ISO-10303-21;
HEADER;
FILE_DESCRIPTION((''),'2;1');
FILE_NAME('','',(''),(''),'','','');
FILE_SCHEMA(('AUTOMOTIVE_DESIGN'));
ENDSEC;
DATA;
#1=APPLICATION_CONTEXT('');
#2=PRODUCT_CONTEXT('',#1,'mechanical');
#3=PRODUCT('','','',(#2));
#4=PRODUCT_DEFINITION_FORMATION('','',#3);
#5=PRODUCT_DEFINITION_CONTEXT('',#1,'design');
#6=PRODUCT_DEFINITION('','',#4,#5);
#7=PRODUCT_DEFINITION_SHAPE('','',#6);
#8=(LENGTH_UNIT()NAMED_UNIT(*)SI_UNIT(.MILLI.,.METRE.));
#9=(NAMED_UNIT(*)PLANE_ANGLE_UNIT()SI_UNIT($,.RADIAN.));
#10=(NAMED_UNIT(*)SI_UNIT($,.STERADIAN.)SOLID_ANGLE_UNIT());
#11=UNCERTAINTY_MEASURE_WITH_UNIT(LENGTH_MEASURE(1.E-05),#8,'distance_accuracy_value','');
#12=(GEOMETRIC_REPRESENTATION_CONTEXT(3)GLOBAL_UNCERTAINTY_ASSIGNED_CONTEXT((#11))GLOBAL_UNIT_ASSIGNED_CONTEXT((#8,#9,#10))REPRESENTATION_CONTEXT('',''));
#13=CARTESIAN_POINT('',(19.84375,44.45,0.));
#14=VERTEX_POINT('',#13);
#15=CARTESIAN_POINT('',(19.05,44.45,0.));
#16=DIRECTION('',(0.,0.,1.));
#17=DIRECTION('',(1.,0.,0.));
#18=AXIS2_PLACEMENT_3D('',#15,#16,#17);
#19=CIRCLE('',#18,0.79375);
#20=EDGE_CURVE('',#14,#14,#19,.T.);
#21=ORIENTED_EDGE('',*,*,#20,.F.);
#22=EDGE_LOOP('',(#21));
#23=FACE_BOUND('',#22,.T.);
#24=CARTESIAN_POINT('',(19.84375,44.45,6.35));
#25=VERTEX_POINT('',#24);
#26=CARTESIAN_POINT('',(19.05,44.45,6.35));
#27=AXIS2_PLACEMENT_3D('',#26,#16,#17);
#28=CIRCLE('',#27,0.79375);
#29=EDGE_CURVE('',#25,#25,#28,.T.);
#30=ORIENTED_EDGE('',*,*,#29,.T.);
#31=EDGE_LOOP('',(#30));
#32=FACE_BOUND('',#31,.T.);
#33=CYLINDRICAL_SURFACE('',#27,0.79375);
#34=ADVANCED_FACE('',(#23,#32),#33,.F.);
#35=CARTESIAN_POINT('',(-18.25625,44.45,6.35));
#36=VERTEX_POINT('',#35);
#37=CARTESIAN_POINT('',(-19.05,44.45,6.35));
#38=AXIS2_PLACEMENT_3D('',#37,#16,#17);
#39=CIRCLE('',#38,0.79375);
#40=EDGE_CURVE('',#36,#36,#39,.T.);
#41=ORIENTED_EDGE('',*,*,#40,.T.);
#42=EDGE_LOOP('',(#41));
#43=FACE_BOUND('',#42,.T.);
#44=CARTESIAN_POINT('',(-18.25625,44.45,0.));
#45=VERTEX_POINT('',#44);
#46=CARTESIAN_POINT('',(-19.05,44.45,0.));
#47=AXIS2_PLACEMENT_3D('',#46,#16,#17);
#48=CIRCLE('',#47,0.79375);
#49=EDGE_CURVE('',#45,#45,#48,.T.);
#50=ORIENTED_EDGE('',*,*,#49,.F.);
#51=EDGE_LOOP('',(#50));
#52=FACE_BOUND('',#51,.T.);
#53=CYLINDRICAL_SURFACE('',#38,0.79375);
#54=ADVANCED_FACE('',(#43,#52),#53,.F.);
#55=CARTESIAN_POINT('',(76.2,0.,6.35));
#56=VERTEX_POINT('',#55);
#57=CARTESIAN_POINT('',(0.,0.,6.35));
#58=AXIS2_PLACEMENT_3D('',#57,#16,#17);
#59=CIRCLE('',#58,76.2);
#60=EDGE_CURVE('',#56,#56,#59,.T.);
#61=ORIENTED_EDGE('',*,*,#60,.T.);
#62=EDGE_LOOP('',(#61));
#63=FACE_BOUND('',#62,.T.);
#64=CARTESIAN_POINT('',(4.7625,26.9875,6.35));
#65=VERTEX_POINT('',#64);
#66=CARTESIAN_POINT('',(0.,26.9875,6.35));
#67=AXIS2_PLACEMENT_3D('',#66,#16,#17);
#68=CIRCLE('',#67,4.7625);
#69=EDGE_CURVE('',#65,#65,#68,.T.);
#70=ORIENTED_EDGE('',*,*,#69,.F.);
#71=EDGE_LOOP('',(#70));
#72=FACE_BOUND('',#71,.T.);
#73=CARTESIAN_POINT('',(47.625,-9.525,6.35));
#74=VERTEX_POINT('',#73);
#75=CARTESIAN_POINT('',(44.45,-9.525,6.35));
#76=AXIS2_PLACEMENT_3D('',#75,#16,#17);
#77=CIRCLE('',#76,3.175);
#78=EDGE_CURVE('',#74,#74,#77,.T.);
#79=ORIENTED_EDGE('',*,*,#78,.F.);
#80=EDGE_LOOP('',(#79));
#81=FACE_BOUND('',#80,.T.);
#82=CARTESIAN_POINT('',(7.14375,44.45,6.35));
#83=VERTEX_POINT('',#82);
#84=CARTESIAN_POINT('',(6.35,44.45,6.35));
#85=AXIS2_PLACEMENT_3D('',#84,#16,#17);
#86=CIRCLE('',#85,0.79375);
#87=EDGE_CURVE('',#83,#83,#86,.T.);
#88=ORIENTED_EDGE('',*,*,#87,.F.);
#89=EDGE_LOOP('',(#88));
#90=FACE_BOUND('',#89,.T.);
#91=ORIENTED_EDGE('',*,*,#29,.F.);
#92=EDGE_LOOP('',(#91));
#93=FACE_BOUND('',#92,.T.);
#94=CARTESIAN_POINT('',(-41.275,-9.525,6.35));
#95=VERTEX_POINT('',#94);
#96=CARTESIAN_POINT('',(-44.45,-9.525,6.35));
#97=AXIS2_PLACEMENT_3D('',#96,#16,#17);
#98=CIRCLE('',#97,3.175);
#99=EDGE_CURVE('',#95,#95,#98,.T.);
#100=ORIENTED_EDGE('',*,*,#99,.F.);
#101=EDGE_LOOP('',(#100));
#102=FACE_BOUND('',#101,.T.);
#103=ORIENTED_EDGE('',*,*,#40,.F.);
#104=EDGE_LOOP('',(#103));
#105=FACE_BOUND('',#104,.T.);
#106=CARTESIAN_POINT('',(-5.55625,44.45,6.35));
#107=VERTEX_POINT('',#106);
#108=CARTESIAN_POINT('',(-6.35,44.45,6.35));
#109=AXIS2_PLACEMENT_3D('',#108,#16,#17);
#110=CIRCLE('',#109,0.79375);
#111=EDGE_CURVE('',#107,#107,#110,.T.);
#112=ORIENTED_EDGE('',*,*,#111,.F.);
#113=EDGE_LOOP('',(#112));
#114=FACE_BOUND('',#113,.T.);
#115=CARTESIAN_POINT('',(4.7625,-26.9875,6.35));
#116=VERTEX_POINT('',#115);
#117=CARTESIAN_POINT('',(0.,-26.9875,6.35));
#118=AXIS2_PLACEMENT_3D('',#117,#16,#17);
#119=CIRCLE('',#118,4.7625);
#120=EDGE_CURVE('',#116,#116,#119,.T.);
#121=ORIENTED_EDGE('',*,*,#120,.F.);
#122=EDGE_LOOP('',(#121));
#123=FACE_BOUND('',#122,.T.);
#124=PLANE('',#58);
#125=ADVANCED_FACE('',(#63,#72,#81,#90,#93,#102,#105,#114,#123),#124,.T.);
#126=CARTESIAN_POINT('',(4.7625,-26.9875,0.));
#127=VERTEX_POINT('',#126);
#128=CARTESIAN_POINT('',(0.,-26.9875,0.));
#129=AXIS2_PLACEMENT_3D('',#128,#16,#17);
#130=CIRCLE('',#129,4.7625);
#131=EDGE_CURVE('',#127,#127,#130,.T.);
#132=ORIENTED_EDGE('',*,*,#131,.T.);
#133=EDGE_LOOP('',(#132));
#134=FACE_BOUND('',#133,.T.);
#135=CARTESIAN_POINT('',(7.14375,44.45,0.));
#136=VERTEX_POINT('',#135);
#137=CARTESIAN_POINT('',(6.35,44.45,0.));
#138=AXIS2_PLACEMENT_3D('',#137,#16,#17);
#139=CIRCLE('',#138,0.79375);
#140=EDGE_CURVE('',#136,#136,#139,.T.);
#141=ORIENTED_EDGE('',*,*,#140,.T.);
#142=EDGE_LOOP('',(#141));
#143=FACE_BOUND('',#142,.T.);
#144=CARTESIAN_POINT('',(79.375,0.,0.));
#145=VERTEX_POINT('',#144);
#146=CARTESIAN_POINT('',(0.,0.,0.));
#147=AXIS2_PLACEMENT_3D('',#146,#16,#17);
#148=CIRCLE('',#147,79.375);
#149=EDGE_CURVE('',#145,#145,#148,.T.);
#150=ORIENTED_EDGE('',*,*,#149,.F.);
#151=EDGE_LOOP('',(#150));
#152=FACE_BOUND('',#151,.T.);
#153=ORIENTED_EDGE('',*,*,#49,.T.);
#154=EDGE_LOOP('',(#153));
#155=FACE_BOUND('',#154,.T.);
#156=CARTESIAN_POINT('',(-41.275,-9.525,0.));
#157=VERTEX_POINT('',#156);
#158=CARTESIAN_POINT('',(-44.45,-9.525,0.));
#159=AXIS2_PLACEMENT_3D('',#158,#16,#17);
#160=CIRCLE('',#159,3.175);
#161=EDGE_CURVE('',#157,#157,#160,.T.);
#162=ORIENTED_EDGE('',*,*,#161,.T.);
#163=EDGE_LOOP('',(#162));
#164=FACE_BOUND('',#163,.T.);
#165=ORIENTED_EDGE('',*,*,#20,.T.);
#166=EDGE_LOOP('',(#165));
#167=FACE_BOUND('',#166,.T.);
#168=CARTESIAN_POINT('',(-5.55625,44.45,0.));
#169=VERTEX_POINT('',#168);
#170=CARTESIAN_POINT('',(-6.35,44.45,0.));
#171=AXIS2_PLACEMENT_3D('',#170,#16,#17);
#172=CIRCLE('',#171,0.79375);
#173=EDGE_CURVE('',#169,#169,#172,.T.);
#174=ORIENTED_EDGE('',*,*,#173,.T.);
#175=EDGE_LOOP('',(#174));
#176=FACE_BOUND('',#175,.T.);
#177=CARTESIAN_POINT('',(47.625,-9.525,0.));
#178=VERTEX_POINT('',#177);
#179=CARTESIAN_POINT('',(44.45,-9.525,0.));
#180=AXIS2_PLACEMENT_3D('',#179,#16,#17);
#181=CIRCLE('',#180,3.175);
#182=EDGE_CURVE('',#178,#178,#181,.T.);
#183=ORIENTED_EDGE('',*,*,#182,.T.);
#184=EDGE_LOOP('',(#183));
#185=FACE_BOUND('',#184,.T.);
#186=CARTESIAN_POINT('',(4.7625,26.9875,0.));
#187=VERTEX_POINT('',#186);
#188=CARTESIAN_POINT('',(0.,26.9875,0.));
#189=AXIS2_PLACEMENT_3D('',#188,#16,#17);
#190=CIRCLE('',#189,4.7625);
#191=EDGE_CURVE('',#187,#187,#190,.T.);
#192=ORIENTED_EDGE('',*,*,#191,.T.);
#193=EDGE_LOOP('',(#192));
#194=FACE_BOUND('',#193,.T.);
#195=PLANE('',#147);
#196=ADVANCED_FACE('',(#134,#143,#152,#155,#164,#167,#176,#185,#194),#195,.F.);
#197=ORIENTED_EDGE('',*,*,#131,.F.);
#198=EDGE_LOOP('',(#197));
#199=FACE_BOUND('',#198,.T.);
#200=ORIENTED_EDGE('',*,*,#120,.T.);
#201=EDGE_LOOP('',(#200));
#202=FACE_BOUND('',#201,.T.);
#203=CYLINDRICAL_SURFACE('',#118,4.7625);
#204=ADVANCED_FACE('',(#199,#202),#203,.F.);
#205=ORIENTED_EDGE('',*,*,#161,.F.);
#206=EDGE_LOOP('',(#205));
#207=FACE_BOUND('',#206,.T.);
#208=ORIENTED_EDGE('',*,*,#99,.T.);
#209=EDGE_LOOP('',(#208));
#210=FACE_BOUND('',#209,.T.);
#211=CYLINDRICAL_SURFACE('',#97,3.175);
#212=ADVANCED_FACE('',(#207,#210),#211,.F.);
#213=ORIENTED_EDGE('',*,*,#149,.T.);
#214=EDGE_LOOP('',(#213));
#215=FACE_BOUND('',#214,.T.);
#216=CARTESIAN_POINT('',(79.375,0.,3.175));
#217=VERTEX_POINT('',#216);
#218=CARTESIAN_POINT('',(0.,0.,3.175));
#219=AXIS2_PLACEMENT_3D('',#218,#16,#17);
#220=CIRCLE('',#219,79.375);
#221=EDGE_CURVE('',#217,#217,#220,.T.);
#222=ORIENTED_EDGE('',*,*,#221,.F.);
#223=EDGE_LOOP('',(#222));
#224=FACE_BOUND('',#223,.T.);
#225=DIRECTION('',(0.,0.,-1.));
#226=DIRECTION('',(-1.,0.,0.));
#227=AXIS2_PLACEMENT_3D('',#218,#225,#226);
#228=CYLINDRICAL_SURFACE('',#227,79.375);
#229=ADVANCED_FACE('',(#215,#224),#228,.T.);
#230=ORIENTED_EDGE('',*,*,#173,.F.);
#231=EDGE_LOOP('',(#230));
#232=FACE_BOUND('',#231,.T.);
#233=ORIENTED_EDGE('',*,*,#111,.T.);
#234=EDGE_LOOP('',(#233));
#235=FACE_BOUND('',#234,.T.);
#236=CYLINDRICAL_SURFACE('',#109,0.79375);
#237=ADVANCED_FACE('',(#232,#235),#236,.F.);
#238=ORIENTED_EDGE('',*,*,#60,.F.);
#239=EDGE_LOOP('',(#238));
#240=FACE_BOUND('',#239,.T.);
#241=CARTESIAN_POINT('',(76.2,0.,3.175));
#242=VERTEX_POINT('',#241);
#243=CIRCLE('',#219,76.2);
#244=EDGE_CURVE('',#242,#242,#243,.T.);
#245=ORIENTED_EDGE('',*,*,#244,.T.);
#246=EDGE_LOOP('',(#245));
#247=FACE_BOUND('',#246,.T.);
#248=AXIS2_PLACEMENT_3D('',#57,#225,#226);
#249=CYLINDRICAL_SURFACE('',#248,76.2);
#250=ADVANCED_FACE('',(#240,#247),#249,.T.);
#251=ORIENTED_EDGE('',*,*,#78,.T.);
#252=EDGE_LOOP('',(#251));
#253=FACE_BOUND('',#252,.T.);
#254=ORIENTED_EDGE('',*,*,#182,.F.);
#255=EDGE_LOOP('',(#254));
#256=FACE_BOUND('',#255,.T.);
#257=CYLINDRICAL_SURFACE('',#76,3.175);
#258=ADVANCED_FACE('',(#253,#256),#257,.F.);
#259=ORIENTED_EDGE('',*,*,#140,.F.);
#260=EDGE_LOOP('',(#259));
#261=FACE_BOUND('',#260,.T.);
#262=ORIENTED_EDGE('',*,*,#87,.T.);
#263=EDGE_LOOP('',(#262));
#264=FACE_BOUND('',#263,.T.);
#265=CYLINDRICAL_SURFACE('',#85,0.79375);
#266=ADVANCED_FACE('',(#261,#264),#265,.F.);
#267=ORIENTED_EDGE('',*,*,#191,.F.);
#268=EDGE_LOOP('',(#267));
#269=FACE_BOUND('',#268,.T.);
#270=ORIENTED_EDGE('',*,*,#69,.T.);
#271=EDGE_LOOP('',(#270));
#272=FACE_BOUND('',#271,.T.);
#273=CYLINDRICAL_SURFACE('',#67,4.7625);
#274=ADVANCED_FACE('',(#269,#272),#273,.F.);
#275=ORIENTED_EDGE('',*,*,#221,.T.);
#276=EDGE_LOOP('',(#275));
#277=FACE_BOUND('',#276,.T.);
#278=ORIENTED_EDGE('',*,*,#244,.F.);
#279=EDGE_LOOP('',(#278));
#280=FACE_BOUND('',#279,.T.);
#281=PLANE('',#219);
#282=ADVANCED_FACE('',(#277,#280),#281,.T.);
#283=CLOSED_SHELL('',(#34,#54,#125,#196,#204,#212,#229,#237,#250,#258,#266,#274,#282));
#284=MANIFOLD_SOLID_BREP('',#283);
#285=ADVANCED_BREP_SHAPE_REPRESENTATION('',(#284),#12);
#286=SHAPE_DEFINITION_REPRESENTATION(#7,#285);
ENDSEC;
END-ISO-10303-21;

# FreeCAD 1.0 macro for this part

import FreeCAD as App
import Part
import Sketcher
Q = App.Units.Quantity

doc = App.newDocument("Part")
body = doc.addObject("PartDesign::Body", "Body")

# Sketch on XY plane
sketch1 = body.newObject("Sketcher::SketchObject", "Sketch")
sketch1.AttachmentSupport = (doc.getObject("XY_Plane"), [""])
sketch1.MapMode = "FlatFace"
sketch1.addGeometry(Part.Circle(App.Vector(0, 0, 0), App.Vector(0, 0, 1), 79), False)
sketch1.addConstraint(Sketcher.Constraint("Coincident", 0, 3, -1, 1))
sketch1.addConstraint(Sketcher.Constraint("Diameter", 0, Q("6.25 in")))
pad1 = body.newObject("PartDesign::Pad", "Pad")
pad1.Profile = sketch1
pad1.Length = Q("0.125 in")

# Sketch on XY plane
sketch2 = body.newObject("Sketcher::SketchObject", "Sketch001")
sketch2.AttachmentSupport = (doc.getObject("XY_Plane"), [""])
sketch2.MapMode = "FlatFace"
sketch2.AttachmentOffset = App.Placement(App.Vector(0, 0, 0.125 * 25.4), App.Rotation())
sketch2.addGeometry(Part.Circle(App.Vector(0, 0, 0), App.Vector(0, 0, 1), 76), False)
sketch2.addConstraint(Sketcher.Constraint("Coincident", 0, 3, -1, 1))
sketch2.addConstraint(Sketcher.Constraint("Diameter", 0, Q("6 in")))
pad2 = body.newObject("PartDesign::Pad", "Pad001")
pad2.Profile = sketch2
pad2.Length = Q("0.125 in")

# Sketch on XY plane
sketch3 = body.newObject("Sketcher::SketchObject", "Sketch002")
sketch3.AttachmentSupport = (doc.getObject("XY_Plane"), [""])
sketch3.MapMode = "FlatFace"
sketch3.AttachmentOffset = App.Placement(App.Vector(0, 0, 0.25 * 25.4), App.Rotation())
sketch3.addGeometry(Part.Circle(App.Vector(-44.5, -9.5, 0), App.Vector(0, 0, 1), 3.2), False)
sketch3.addGeometry(Part.Circle(App.Vector(44.5, -9.5, 0), App.Vector(0, 0, 1), 3.2), False)
sketch3.addConstraint(Sketcher.Constraint("Equal", 0, 1))
sketch3.addConstraint(Sketcher.Constraint("Symmetric", 0, 3, 1, 3, -2))
sketch3.addConstraint(Sketcher.Constraint("Diameter", 0, Q("0.25 in")))
sketch3.addConstraint(Sketcher.Constraint("DistanceX", 0, 3, 1, 3, Q("3.5 in")))
sketch3.addConstraint(Sketcher.Constraint("DistanceY", 0, 3, -1, 1, Q("0.375 in")))
doc.recompute()
hole = body.newObject("PartDesign::Hole", "Hole")
hole.Profile = sketch3
hole.ThreadType = "None"
hole.Diameter = Q("0.25 in")
hole.DepthType = "ThroughAll"

# Sketch on XY plane
sketch4 = body.newObject("Sketcher::SketchObject", "Sketch003")
sketch4.AttachmentSupport = (doc.getObject("XY_Plane"), [""])
sketch4.MapMode = "FlatFace"
sketch4.AttachmentOffset = App.Placement(App.Vector(0, 0, 0.25 * 25.4), App.Rotation())
sketch4.addGeometry(Part.Circle(App.Vector(-19.1, 44.5, 0), App.Vector(0, 0, 1), 0.8), False)
sketch4.addGeometry(Part.Circle(App.Vector(-6.3, 44.5, 0), App.Vector(0, 0, 1), 0.8), False)
sketch4.addGeometry(Part.Circle(App.Vector(6.3, 44.5, 0), App.Vector(0, 0, 1), 0.8), False)
sketch4.addGeometry(Part.Circle(App.Vector(19.1, 44.5, 0), App.Vector(0, 0, 1), 0.8), False)
sketch4.addConstraint(Sketcher.Constraint("Equal", 0, 1))
sketch4.addConstraint(Sketcher.Constraint("Equal", 1, 2))
sketch4.addConstraint(Sketcher.Constraint("Equal", 2, 3))
sketch4.addConstraint(Sketcher.Constraint("Symmetric", 1, 3, 2, 3, -2))
sketch4.addConstraint(Sketcher.Constraint("Symmetric", 0, 3, 3, 3, -2))
sketch4.addConstraint(Sketcher.Constraint("Horizontal", 0, 3, 1, 3))
sketch4.addConstraint(Sketcher.Constraint("Diameter", 0, Q("0.0625 in")))
sketch4.addConstraint(Sketcher.Constraint("DistanceX", 0, 3, 2, 3, Q("1 in")))
sketch4.addConstraint(Sketcher.Constraint("DistanceX", 0, 3, 1, 3, Q("0.5 in")))
sketch4.addConstraint(Sketcher.Constraint("DistanceY", -1, 1, 0, 3, Q("1.75 in")))
doc.recompute()
hole2 = body.newObject("PartDesign::Hole", "Hole001")
hole2.Profile = sketch4
hole2.ThreadType = "None"
hole2.Diameter = Q("0.0625 in")
hole2.DepthType = "ThroughAll"

# Sketch on XY plane
sketch5 = body.newObject("Sketcher::SketchObject", "Sketch004")
sketch5.AttachmentSupport = (doc.getObject("XY_Plane"), [""])
sketch5.MapMode = "FlatFace"
sketch5.AttachmentOffset = App.Placement(App.Vector(0, 0, 0.25 * 25.4), App.Rotation())
sketch5.addGeometry(Part.Circle(App.Vector(0, -27, 0), App.Vector(0, 0, 1), 4.8), False)
sketch5.addGeometry(Part.Circle(App.Vector(0, 27, 0), App.Vector(0, 0, 1), 4.8), False)
sketch5.addConstraint(Sketcher.Constraint("Equal", 0, 1))
sketch5.addConstraint(Sketcher.Constraint("Symmetric", 0, 3, 1, 3, -1, 1))
sketch5.addConstraint(Sketcher.Constraint("PointOnObject", 0, 3, -2))
sketch5.addConstraint(Sketcher.Constraint("Diameter", 0, Q("0.375 in")))
sketch5.addConstraint(Sketcher.Constraint("DistanceY", 0, 3, -1, 1, Q("1.0625 in")))
doc.recompute()
hole3 = body.newObject("PartDesign::Hole", "Hole002")
hole3.Profile = sketch5
hole3.ThreadType = "None"
hole3.Diameter = Q("0.375 in")
hole3.DepthType = "ThroughAll"

doc.recompute()
